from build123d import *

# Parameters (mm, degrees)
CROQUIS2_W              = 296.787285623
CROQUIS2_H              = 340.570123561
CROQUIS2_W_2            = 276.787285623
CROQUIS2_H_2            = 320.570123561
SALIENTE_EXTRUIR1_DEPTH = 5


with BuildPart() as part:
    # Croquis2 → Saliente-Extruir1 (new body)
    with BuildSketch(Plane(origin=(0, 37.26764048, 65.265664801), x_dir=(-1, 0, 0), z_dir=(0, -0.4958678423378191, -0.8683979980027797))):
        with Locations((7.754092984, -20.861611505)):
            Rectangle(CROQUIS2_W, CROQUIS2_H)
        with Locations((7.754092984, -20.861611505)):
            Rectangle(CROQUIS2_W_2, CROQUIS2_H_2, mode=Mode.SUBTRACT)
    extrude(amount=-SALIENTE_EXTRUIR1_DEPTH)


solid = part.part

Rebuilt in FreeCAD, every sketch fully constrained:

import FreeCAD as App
import Part
import Sketcher
Q = App.Units.Quantity


def add_polygon(sketch, points):
    """Adds a closed chain of lines whose ends are joined by coincident constraints."""
    first, n = sketch.GeometryCount, len(points)
    for a, b in zip(points, points[1:] + points[:1]):
        sketch.addGeometry(Part.LineSegment(App.Vector(*a, 0), App.Vector(*b, 0)), False)
    for i in range(n):
        sketch.addConstraint(Sketcher.Constraint("Coincident", first + i, 2, first + (i + 1) % n, 1))

doc = App.newDocument("Part")
body = doc.addObject("PartDesign::Body", "Body")

sketch1 = body.newObject("Sketcher::SketchObject", "Sketch")
sketch1.Placement = App.Placement(App.Vector(0, 37.26764, 65.265665), App.Rotation(App.Vector(-1, 0, 0), App.Vector(0, 0.868397998, -0.495867842), App.Vector(0, -0.495867842, -0.868397998), "ZXY"))
add_polygon(sketch1, [(-141, 149), (-141, -191), (156, -191), (156, 149)])
add_polygon(sketch1, [(146, -181), (-131, -181), (-131, 139), (146, 139)])
sketch1.addConstraint([
    Sketcher.Constraint("Vertical", 0),
    Sketcher.Constraint("Horizontal", 1),
    Sketcher.Constraint("Vertical", 2),
    Sketcher.Constraint("Horizontal", 3),
    Sketcher.Constraint("Horizontal", 4),
    Sketcher.Constraint("Vertical", 5),
    Sketcher.Constraint("Horizontal", 6),
    Sketcher.Constraint("Vertical", 7),
    Sketcher.Constraint("DistanceX", 0, 2, 4, 2, Q("10 mm")),
    Sketcher.Constraint("DistanceY", 0, 2, 4, 2, Q("10 mm")),
    Sketcher.Constraint("DistanceY", 5, 2, 3, 2, Q("10 mm")),
    Sketcher.Constraint("DistanceX", 6, 2, 2, 2, Q("10 mm")),
    Sketcher.Constraint("DistanceX", 1, 1, 1, 2, Q("296.787286 mm")),
    Sketcher.Constraint("DistanceY", 0, 2, 0, 1, Q("340.570123 mm")),
    Sketcher.Constraint("DistanceX", 0, 2, -1, 1, Q("140.63955 mm")),
    Sketcher.Constraint("DistanceY", -1, 1, 2, 2, Q("149.42345 mm")),
])
pad1 = body.newObject("PartDesign::Pad", "Pad")
pad1.Profile = sketch1
pad1.Length = 5
pad1.Reversed = True

doc.recompute()
